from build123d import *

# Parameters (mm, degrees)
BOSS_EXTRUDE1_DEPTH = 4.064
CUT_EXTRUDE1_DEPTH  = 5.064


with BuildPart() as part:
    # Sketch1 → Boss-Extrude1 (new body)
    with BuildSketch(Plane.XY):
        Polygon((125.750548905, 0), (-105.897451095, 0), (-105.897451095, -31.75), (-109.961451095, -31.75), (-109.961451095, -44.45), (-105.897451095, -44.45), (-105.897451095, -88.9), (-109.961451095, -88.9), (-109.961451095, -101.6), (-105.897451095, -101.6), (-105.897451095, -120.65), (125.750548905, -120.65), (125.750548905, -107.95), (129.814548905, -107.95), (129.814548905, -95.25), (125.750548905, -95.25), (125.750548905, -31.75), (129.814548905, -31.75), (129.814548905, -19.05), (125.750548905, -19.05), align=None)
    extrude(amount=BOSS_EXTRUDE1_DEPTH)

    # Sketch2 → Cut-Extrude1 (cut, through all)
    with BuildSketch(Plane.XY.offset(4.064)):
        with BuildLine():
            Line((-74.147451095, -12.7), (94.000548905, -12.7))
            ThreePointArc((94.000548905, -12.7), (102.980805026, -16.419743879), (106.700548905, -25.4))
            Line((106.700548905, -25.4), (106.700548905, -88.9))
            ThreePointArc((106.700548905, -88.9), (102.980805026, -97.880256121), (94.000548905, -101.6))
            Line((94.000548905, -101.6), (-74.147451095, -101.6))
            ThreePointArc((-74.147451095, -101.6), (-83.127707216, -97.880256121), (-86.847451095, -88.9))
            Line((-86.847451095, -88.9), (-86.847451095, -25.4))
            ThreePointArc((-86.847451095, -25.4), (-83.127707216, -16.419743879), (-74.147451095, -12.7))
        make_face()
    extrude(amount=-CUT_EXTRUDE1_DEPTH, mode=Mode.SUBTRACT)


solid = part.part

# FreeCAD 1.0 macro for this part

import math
import FreeCAD as App
import Part
import Sketcher
from FreeCAD import Vector
Q = App.Units.Quantity

doc = App.newDocument("Part")
body = doc.addObject("PartDesign::Body", "Body")

# Sketch on XY plane
sketch1 = body.newObject("Sketcher::SketchObject", "Sketch")
sketch1.AttachmentSupport = (doc.getObject("XY_Plane"), [""])
sketch1.MapMode = "FlatFace"
sketch1.addGeometry(Part.LineSegment(Vector(125.8, 0, 0), Vector(-105.9, 0, 0)), False)
sketch1.addGeometry(Part.LineSegment(Vector(-105.9, 0, 0), Vector(-105.9, -31.8, 0)), False)
sketch1.addGeometry(Part.LineSegment(Vector(-105.9, -31.8, 0), Vector(-110, -31.8, 0)), False)
sketch1.addGeometry(Part.LineSegment(Vector(-110, -31.8, 0), Vector(-110, -44.5, 0)), False)
sketch1.addGeometry(Part.LineSegment(Vector(-110, -44.5, 0), Vector(-105.9, -44.5, 0)), False)
sketch1.addGeometry(Part.LineSegment(Vector(-105.9, -44.5, 0), Vector(-105.9, -88.9, 0)), False)
sketch1.addGeometry(Part.LineSegment(Vector(-105.9, -88.9, 0), Vector(-110, -88.9, 0)), False)
sketch1.addGeometry(Part.LineSegment(Vector(-110, -88.9, 0), Vector(-110, -101.6, 0)), False)
sketch1.addGeometry(Part.LineSegment(Vector(-110, -101.6, 0), Vector(-105.9, -101.6, 0)), False)
sketch1.addGeometry(Part.LineSegment(Vector(-105.9, -101.6, 0), Vector(-105.9, -120.7, 0)), False)
sketch1.addGeometry(Part.LineSegment(Vector(-105.9, -120.7, 0), Vector(125.8, -120.7, 0)), False)
sketch1.addGeometry(Part.LineSegment(Vector(125.8, -120.7, 0), Vector(125.8, -108, 0)), False)
sketch1.addGeometry(Part.LineSegment(Vector(125.8, -108, 0), Vector(129.8, -108, 0)), False)
sketch1.addGeometry(Part.LineSegment(Vector(129.8, -108, 0), Vector(129.8, -95.2, 0)), False)
sketch1.addGeometry(Part.LineSegment(Vector(129.8, -95.2, 0), Vector(125.8, -95.2, 0)), False)
sketch1.addGeometry(Part.LineSegment(Vector(125.8, -95.2, 0), Vector(125.8, -31.8, 0)), False)
sketch1.addGeometry(Part.LineSegment(Vector(125.8, -31.8, 0), Vector(129.8, -31.8, 0)), False)
sketch1.addGeometry(Part.LineSegment(Vector(129.8, -31.8, 0), Vector(129.8, -19.1, 0)), False)
sketch1.addGeometry(Part.LineSegment(Vector(129.8, -19.1, 0), Vector(125.8, -19.1, 0)), False)
sketch1.addGeometry(Part.LineSegment(Vector(125.8, -19.1, 0), Vector(125.8, 0, 0)), False)
sketch1.addConstraint(Sketcher.Constraint("Coincident", 0, 2, 1, 1))
sketch1.addConstraint(Sketcher.Constraint("Coincident", 1, 2, 2, 1))
sketch1.addConstraint(Sketcher.Constraint("Coincident", 2, 2, 3, 1))
sketch1.addConstraint(Sketcher.Constraint("Coincident", 3, 2, 4, 1))
sketch1.addConstraint(Sketcher.Constraint("Coincident", 4, 2, 5, 1))
sketch1.addConstraint(Sketcher.Constraint("Coincident", 5, 2, 6, 1))
sketch1.addConstraint(Sketcher.Constraint("Coincident", 6, 2, 7, 1))
sketch1.addConstraint(Sketcher.Constraint("Coincident", 7, 2, 8, 1))
sketch1.addConstraint(Sketcher.Constraint("Coincident", 8, 2, 9, 1))
sketch1.addConstraint(Sketcher.Constraint("Coincident", 9, 2, 10, 1))
sketch1.addConstraint(Sketcher.Constraint("Coincident", 10, 2, 11, 1))
sketch1.addConstraint(Sketcher.Constraint("Coincident", 11, 2, 12, 1))
sketch1.addConstraint(Sketcher.Constraint("Coincident", 12, 2, 13, 1))
sketch1.addConstraint(Sketcher.Constraint("Coincident", 13, 2, 14, 1))
sketch1.addConstraint(Sketcher.Constraint("Coincident", 14, 2, 15, 1))
sketch1.addConstraint(Sketcher.Constraint("Coincident", 15, 2, 16, 1))
sketch1.addConstraint(Sketcher.Constraint("Coincident", 16, 2, 17, 1))
sketch1.addConstraint(Sketcher.Constraint("Coincident", 17, 2, 18, 1))
sketch1.addConstraint(Sketcher.Constraint("Coincident", 18, 2, 19, 1))
sketch1.addConstraint(Sketcher.Constraint("Coincident", 19, 2, 0, 1))
sketch1.addConstraint(Sketcher.Constraint("Horizontal", 0))
sketch1.addConstraint(Sketcher.Constraint("Vertical", 1))
sketch1.addConstraint(Sketcher.Constraint("Horizontal", 2))
sketch1.addConstraint(Sketcher.Constraint("Vertical", 3))
sketch1.addConstraint(Sketcher.Constraint("Horizontal", 4))
sketch1.addConstraint(Sketcher.Constraint("Vertical", 5))
sketch1.addConstraint(Sketcher.Constraint("Horizontal", 6))
sketch1.addConstraint(Sketcher.Constraint("Vertical", 7))
sketch1.addConstraint(Sketcher.Constraint("Horizontal", 8))
sketch1.addConstraint(Sketcher.Constraint("Vertical", 9))
sketch1.addConstraint(Sketcher.Constraint("Horizontal", 10))
sketch1.addConstraint(Sketcher.Constraint("Vertical", 11))
sketch1.addConstraint(Sketcher.Constraint("Horizontal", 12))
sketch1.addConstraint(Sketcher.Constraint("Vertical", 13))
sketch1.addConstraint(Sketcher.Constraint("Horizontal", 14))
sketch1.addConstraint(Sketcher.Constraint("Vertical", 15))
sketch1.addConstraint(Sketcher.Constraint("Horizontal", 16))
sketch1.addConstraint(Sketcher.Constraint("Vertical", 17))
sketch1.addConstraint(Sketcher.Constraint("Horizontal", 18))
sketch1.addConstraint(Sketcher.Constraint("Vertical", 19))
sketch1.addConstraint(Sketcher.Constraint("PointOnObject", 0, 2, -1))
sketch1.addConstraint(Sketcher.Constraint("Horizontal", 2, 2, 15, 2))
sketch1.addConstraint(Sketcher.Constraint("Vertical", 1, 2, 4, 2))
sketch1.addConstraint(Sketcher.Constraint("Vertical", 3, 2, 6, 2))
sketch1.addConstraint(Sketcher.Constraint("Vertical", 5, 2, 8, 2))
sketch1.addConstraint(Sketcher.Constraint("Vertical", 11, 2, 14, 2))
sketch1.addConstraint(Sketcher.Constraint("Vertical", 13, 2, 16, 2))
sketch1.addConstraint(Sketcher.Constraint("Vertical", 15, 2, 18, 2))
sketch1.addConstraint(Sketcher.Constraint("Equal", 8, 12))
sketch1.addConstraint(Sketcher.Constraint("Equal", 3, 7))
sketch1.addConstraint(Sketcher.Constraint("Equal", 7, 11))
sketch1.addConstraint(Sketcher.Constraint("Equal", 11, 13))
sketch1.addConstraint(Sketcher.Constraint("Equal", 13, 17))
sketch1.addConstraint(Sketcher.Constraint("Equal", 9, 19))
sketch1.addConstraint(Sketcher.Constraint("DistanceY", 3, 2, 3, 1, Q("0.5 in")))
sketch1.addConstraint(Sketcher.Constraint("DistanceY", 15, 1, 15, 2, Q("2.5 in")))
sketch1.addConstraint(Sketcher.Constraint("DistanceX", 0, 2, 0, 1, Q("9.12 in")))
sketch1.addConstraint(Sketcher.Constraint("DistanceX", 2, 2, 2, 1, Q("0.16 in")))
sketch1.addConstraint(Sketcher.Constraint("DistanceY", 1, 2, 1, 1, Q("1.25 in")))
sketch1.addConstraint(Sketcher.Constraint("DistanceX", 0, 2, -1, 1, Q("105.897451 mm")))
pad1 = body.newObject("PartDesign::Pad", "Pad")
pad1.Profile = sketch1
pad1.Length = Q("0.16 in")

# Sketch on XY plane
sketch2 = body.newObject("Sketcher::SketchObject", "Sketch001")
sketch2.AttachmentSupport = (doc.getObject("XY_Plane"), [""])
sketch2.MapMode = "FlatFace"
sketch2.AttachmentOffset = App.Placement(Vector(0, 0, 0.16 * 25.4), App.Rotation())
sketch2.addGeometry(Part.LineSegment(Vector(94, -13, 0), Vector(-74, -13, 0)), False)
sketch2.addGeometry(Part.ArcOfCircle(Part.Circle(Vector(-74, -25, 0), Vector(0, 0, 1), 13), math.radians(90), math.radians(180)), False)
sketch2.addGeometry(Part.LineSegment(Vector(-87, -25, 0), Vector(-87, -89, 0)), False)
sketch2.addGeometry(Part.ArcOfCircle(Part.Circle(Vector(-74, -89, 0), Vector(0, 0, 1), 13), math.radians(180), math.radians(270)), False)
sketch2.addGeometry(Part.LineSegment(Vector(-74, -102, 0), Vector(94, -102, 0)), False)
sketch2.addGeometry(Part.ArcOfCircle(Part.Circle(Vector(94, -89, 0), Vector(0, 0, 1), 13), math.radians(-90), math.radians(0)), False)
sketch2.addGeometry(Part.LineSegment(Vector(107, -89, 0), Vector(107, -25, 0)), False)
sketch2.addGeometry(Part.ArcOfCircle(Part.Circle(Vector(94, -25, 0), Vector(0, 0, 1), 13), math.radians(0), math.radians(90)), False)
sketch2.addConstraint(Sketcher.Constraint("Tangent", 0, 2, 1, 1))
sketch2.addConstraint(Sketcher.Constraint("Tangent", 1, 2, 2, 1))
sketch2.addConstraint(Sketcher.Constraint("Tangent", 2, 2, 3, 1))
sketch2.addConstraint(Sketcher.Constraint("Tangent", 3, 2, 4, 1))
sketch2.addConstraint(Sketcher.Constraint("Tangent", 4, 2, 5, 1))
sketch2.addConstraint(Sketcher.Constraint("Tangent", 5, 2, 6, 1))
sketch2.addConstraint(Sketcher.Constraint("Tangent", 6, 2, 7, 1))
sketch2.addConstraint(Sketcher.Constraint("Tangent", 7, 2, 0, 1))
sketch2.addConstraint(Sketcher.Constraint("Horizontal", 0))
sketch2.addConstraint(Sketcher.Constraint("Vertical", 2))
sketch2.addConstraint(Sketcher.Constraint("Horizontal", 4))
sketch2.addConstraint(Sketcher.Constraint("Vertical", 6))
sketch2.addConstraint(Sketcher.Constraint("Equal", 1, 3))
sketch2.addConstraint(Sketcher.Constraint("Equal", 3, 5))
sketch2.addConstraint(Sketcher.Constraint("Equal", 5, 7))
sketch2.addConstraint(Sketcher.Constraint("Radius", 1, Q("0.5 in")))
sketch2.addConstraint(Sketcher.Constraint("DistanceY", 2, 2, 2, 1, Q("2.5 in")))
sketch2.addConstraint(Sketcher.Constraint("DistanceY", 1, 3, -1, 1, Q("1 in")))
sketch2.addConstraint(Sketcher.Constraint("DistanceX", 0, 2, 0, 1, Q("6.62 in")))
sketch2.addConstraint(Sketcher.Constraint("DistanceX", 1, 3, -1, 1, Q("74.147451 mm")))
pocket1 = body.newObject("PartDesign::Pocket", "Pocket")
pocket1.Profile = sketch2
pocket1.Type = "ThroughAll"

doc.recompute()
